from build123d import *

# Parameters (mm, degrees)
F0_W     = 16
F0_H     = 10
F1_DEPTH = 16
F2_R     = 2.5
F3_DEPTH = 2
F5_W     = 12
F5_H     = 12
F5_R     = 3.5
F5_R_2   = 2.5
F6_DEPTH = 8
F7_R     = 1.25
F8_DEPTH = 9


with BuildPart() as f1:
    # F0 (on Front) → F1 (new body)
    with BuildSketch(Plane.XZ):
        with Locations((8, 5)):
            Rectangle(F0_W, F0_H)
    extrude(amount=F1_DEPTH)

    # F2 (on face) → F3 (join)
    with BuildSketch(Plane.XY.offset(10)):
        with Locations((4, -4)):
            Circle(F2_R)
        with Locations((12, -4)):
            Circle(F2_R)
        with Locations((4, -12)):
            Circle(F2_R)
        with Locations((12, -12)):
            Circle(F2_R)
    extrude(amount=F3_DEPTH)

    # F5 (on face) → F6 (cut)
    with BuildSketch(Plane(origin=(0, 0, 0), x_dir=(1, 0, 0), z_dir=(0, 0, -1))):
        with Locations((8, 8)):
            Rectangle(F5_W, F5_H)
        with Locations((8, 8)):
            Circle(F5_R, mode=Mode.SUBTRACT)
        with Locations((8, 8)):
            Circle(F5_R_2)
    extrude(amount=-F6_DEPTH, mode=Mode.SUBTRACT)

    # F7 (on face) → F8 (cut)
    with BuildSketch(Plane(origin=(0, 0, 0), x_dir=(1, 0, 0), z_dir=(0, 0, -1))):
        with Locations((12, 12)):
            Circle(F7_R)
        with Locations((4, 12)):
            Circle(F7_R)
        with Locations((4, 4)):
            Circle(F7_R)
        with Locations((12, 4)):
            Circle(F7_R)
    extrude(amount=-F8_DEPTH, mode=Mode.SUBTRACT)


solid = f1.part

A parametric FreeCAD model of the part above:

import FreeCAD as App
import Part
import Sketcher
Q = App.Units.Quantity


def add_polygon(sketch, points):
    """Adds a closed chain of lines whose ends are joined by coincident constraints."""
    first, n = sketch.GeometryCount, len(points)
    for a, b in zip(points, points[1:] + points[:1]):
        sketch.addGeometry(Part.LineSegment(App.Vector(*a, 0), App.Vector(*b, 0)), False)
    for i in range(n):
        sketch.addConstraint(Sketcher.Constraint("Coincident", first + i, 2, first + (i + 1) % n, 1))

doc = App.newDocument("Part")
body = doc.addObject("PartDesign::Body", "Body")

sketch1 = doc.addObject("Sketcher::SketchObject", "Sketch")
body.addObject(sketch1)
sketch1.AttachmentSupport = (doc.XZ_Plane, [""])
sketch1.MapMode = "FlatFace"
add_polygon(sketch1, [(0, 10), (0, 0), (16, 0), (16, 10)])
sketch1.addConstraint([
    Sketcher.Constraint("Vertical", 0),
    Sketcher.Constraint("Horizontal", 1),
    Sketcher.Constraint("Vertical", 2),
    Sketcher.Constraint("Horizontal", 3),
    Sketcher.Constraint("Coincident", 0, 2, -1, 1),
    Sketcher.Constraint("DistanceX", 1, 1, 1, 2, Q("16 mm")),
    Sketcher.Constraint("DistanceY", 0, 2, 0, 1, Q("10 mm")),
])
pad1 = doc.addObject("PartDesign::Pad", "Pad")
body.addObject(pad1)
pad1.Profile = sketch1
pad1.Length = 16

sketch2 = doc.addObject("Sketcher::SketchObject", "Sketch001")
body.addObject(sketch2)
sketch2.AttachmentSupport = (doc.XY_Plane, [""])
sketch2.MapMode = "FlatFace"
sketch2.AttachmentOffset = App.Placement(App.Vector(0, 0, 10), App.Rotation())
sketch2.addGeometry([
    Part.Circle(App.Vector(4, -4, 0), App.Vector(0, 0, 1), 2.5),
    Part.Circle(App.Vector(12, -4, 0), App.Vector(0, 0, 1), 2.5),
    Part.Circle(App.Vector(4, -12, 0), App.Vector(0, 0, 1), 2.5),
    Part.Circle(App.Vector(12, -12, 0), App.Vector(0, 0, 1), 2.5),
], False)
sketch2.addConstraint([
    Sketcher.Constraint("Equal", 0, 1),
    Sketcher.Constraint("Equal", 1, 2),
    Sketcher.Constraint("Equal", 2, 3),
    Sketcher.Constraint("Horizontal", 0, 3, 1, 3),
    Sketcher.Constraint("Horizontal", 2, 3, 3, 3),
    Sketcher.Constraint("Vertical", 0, 3, 2, 3),
    Sketcher.Constraint("Vertical", 1, 3, 3, 3),
    Sketcher.Constraint("Diameter", 0, Q("5 mm")),
    Sketcher.Constraint("DistanceX", -1, 1, 0, 3, Q("4 mm")),
    Sketcher.Constraint("DistanceY", 0, 3, -1, 1, Q("4 mm")),
    Sketcher.Constraint("DistanceX", -1, 1, 1, 3, Q("12 mm")),
    Sketcher.Constraint("DistanceY", 2, 3, -1, 1, Q("12 mm")),
])
pad2 = doc.addObject("PartDesign::Pad", "Pad001")
body.addObject(pad2)
pad2.Profile = sketch2
pad2.Length = 2

sketch3 = doc.addObject("Sketcher::SketchObject", "Sketch002")
body.addObject(sketch3)
sketch3.AttachmentSupport = (doc.XY_Plane, [""])
sketch3.MapMode = "FlatFace"
add_polygon(sketch3, [(2, -14), (2, -2), (14, -2), (14, -14)])
sketch3.addGeometry(Part.Circle(App.Vector(8, -8, 0), App.Vector(0, 0, 1), 3.5), False)
sketch3.addGeometry(Part.Circle(App.Vector(8, -8, 0), App.Vector(0, 0, 1), 2.5), False)
sketch3.addConstraint([
    Sketcher.Constraint("Vertical", 0),
    Sketcher.Constraint("Horizontal", 1),
    Sketcher.Constraint("Vertical", 2),
    Sketcher.Constraint("Horizontal", 3),
    Sketcher.Constraint("Coincident", 5, 3, 4, 3),
    Sketcher.Constraint("Equal", 3, 0),
    Sketcher.Constraint("Diameter", 4, Q("7 mm")),
    Sketcher.Constraint("Diameter", 5, Q("5 mm")),
    Sketcher.Constraint("DistanceX", 1, 1, 1, 2, Q("12 mm")),
    Sketcher.Constraint("DistanceX", -1, 1, 4, 3, Q("8 mm")),
    Sketcher.Constraint("DistanceY", 4, 3, -1, 1, Q("8 mm")),
    Sketcher.Constraint("DistanceX", -1, 1, 0, 2, Q("2 mm")),
    Sketcher.Constraint("DistanceY", 0, 2, -1, 1, Q("2 mm")),
])
pocket1 = doc.addObject("PartDesign::Pocket", "Pocket")
body.addObject(pocket1)
pocket1.Profile = sketch3
pocket1.Length = 8
pocket1.Reversed = True

sketch4 = doc.addObject("Sketcher::SketchObject", "Sketch003")
body.addObject(sketch4)
sketch4.AttachmentSupport = (doc.XY_Plane, [""])
sketch4.MapMode = "FlatFace"
sketch4.addGeometry([
    Part.Circle(App.Vector(12, -12, 0), App.Vector(0, 0, 1), 1.25),
    Part.Circle(App.Vector(4, -12, 0), App.Vector(0, 0, 1), 1.25),
    Part.Circle(App.Vector(4, -4, 0), App.Vector(0, 0, 1), 1.25),
    Part.Circle(App.Vector(12, -4, 0), App.Vector(0, 0, 1), 1.25),
], False)
sketch4.addConstraint([
    Sketcher.Constraint("Equal", 0, 1),
    Sketcher.Constraint("Equal", 1, 2),
    Sketcher.Constraint("Equal", 2, 3),
    Sketcher.Constraint("Horizontal", 0, 3, 1, 3),
    Sketcher.Constraint("Horizontal", 2, 3, 3, 3),
    Sketcher.Constraint("Vertical", 1, 3, 2, 3),
    Sketcher.Constraint("Vertical", 0, 3, 3, 3),
    Sketcher.Constraint("Diameter", 0, Q("2.5 mm")),
    Sketcher.Constraint("DistanceX", -1, 1, 0, 3, Q("12 mm")),
    Sketcher.Constraint("DistanceY", 0, 3, -1, 1, Q("12 mm")),
    Sketcher.Constraint("DistanceX", -1, 1, 1, 3, Q("4 mm")),
    Sketcher.Constraint("DistanceY", 2, 3, -1, 1, Q("4 mm")),
])
pocket2 = doc.addObject("PartDesign::Pocket", "Pocket001")
body.addObject(pocket2)
pocket2.Profile = sketch4
pocket2.Length = 9
pocket2.Reversed = True

doc.recompute()
